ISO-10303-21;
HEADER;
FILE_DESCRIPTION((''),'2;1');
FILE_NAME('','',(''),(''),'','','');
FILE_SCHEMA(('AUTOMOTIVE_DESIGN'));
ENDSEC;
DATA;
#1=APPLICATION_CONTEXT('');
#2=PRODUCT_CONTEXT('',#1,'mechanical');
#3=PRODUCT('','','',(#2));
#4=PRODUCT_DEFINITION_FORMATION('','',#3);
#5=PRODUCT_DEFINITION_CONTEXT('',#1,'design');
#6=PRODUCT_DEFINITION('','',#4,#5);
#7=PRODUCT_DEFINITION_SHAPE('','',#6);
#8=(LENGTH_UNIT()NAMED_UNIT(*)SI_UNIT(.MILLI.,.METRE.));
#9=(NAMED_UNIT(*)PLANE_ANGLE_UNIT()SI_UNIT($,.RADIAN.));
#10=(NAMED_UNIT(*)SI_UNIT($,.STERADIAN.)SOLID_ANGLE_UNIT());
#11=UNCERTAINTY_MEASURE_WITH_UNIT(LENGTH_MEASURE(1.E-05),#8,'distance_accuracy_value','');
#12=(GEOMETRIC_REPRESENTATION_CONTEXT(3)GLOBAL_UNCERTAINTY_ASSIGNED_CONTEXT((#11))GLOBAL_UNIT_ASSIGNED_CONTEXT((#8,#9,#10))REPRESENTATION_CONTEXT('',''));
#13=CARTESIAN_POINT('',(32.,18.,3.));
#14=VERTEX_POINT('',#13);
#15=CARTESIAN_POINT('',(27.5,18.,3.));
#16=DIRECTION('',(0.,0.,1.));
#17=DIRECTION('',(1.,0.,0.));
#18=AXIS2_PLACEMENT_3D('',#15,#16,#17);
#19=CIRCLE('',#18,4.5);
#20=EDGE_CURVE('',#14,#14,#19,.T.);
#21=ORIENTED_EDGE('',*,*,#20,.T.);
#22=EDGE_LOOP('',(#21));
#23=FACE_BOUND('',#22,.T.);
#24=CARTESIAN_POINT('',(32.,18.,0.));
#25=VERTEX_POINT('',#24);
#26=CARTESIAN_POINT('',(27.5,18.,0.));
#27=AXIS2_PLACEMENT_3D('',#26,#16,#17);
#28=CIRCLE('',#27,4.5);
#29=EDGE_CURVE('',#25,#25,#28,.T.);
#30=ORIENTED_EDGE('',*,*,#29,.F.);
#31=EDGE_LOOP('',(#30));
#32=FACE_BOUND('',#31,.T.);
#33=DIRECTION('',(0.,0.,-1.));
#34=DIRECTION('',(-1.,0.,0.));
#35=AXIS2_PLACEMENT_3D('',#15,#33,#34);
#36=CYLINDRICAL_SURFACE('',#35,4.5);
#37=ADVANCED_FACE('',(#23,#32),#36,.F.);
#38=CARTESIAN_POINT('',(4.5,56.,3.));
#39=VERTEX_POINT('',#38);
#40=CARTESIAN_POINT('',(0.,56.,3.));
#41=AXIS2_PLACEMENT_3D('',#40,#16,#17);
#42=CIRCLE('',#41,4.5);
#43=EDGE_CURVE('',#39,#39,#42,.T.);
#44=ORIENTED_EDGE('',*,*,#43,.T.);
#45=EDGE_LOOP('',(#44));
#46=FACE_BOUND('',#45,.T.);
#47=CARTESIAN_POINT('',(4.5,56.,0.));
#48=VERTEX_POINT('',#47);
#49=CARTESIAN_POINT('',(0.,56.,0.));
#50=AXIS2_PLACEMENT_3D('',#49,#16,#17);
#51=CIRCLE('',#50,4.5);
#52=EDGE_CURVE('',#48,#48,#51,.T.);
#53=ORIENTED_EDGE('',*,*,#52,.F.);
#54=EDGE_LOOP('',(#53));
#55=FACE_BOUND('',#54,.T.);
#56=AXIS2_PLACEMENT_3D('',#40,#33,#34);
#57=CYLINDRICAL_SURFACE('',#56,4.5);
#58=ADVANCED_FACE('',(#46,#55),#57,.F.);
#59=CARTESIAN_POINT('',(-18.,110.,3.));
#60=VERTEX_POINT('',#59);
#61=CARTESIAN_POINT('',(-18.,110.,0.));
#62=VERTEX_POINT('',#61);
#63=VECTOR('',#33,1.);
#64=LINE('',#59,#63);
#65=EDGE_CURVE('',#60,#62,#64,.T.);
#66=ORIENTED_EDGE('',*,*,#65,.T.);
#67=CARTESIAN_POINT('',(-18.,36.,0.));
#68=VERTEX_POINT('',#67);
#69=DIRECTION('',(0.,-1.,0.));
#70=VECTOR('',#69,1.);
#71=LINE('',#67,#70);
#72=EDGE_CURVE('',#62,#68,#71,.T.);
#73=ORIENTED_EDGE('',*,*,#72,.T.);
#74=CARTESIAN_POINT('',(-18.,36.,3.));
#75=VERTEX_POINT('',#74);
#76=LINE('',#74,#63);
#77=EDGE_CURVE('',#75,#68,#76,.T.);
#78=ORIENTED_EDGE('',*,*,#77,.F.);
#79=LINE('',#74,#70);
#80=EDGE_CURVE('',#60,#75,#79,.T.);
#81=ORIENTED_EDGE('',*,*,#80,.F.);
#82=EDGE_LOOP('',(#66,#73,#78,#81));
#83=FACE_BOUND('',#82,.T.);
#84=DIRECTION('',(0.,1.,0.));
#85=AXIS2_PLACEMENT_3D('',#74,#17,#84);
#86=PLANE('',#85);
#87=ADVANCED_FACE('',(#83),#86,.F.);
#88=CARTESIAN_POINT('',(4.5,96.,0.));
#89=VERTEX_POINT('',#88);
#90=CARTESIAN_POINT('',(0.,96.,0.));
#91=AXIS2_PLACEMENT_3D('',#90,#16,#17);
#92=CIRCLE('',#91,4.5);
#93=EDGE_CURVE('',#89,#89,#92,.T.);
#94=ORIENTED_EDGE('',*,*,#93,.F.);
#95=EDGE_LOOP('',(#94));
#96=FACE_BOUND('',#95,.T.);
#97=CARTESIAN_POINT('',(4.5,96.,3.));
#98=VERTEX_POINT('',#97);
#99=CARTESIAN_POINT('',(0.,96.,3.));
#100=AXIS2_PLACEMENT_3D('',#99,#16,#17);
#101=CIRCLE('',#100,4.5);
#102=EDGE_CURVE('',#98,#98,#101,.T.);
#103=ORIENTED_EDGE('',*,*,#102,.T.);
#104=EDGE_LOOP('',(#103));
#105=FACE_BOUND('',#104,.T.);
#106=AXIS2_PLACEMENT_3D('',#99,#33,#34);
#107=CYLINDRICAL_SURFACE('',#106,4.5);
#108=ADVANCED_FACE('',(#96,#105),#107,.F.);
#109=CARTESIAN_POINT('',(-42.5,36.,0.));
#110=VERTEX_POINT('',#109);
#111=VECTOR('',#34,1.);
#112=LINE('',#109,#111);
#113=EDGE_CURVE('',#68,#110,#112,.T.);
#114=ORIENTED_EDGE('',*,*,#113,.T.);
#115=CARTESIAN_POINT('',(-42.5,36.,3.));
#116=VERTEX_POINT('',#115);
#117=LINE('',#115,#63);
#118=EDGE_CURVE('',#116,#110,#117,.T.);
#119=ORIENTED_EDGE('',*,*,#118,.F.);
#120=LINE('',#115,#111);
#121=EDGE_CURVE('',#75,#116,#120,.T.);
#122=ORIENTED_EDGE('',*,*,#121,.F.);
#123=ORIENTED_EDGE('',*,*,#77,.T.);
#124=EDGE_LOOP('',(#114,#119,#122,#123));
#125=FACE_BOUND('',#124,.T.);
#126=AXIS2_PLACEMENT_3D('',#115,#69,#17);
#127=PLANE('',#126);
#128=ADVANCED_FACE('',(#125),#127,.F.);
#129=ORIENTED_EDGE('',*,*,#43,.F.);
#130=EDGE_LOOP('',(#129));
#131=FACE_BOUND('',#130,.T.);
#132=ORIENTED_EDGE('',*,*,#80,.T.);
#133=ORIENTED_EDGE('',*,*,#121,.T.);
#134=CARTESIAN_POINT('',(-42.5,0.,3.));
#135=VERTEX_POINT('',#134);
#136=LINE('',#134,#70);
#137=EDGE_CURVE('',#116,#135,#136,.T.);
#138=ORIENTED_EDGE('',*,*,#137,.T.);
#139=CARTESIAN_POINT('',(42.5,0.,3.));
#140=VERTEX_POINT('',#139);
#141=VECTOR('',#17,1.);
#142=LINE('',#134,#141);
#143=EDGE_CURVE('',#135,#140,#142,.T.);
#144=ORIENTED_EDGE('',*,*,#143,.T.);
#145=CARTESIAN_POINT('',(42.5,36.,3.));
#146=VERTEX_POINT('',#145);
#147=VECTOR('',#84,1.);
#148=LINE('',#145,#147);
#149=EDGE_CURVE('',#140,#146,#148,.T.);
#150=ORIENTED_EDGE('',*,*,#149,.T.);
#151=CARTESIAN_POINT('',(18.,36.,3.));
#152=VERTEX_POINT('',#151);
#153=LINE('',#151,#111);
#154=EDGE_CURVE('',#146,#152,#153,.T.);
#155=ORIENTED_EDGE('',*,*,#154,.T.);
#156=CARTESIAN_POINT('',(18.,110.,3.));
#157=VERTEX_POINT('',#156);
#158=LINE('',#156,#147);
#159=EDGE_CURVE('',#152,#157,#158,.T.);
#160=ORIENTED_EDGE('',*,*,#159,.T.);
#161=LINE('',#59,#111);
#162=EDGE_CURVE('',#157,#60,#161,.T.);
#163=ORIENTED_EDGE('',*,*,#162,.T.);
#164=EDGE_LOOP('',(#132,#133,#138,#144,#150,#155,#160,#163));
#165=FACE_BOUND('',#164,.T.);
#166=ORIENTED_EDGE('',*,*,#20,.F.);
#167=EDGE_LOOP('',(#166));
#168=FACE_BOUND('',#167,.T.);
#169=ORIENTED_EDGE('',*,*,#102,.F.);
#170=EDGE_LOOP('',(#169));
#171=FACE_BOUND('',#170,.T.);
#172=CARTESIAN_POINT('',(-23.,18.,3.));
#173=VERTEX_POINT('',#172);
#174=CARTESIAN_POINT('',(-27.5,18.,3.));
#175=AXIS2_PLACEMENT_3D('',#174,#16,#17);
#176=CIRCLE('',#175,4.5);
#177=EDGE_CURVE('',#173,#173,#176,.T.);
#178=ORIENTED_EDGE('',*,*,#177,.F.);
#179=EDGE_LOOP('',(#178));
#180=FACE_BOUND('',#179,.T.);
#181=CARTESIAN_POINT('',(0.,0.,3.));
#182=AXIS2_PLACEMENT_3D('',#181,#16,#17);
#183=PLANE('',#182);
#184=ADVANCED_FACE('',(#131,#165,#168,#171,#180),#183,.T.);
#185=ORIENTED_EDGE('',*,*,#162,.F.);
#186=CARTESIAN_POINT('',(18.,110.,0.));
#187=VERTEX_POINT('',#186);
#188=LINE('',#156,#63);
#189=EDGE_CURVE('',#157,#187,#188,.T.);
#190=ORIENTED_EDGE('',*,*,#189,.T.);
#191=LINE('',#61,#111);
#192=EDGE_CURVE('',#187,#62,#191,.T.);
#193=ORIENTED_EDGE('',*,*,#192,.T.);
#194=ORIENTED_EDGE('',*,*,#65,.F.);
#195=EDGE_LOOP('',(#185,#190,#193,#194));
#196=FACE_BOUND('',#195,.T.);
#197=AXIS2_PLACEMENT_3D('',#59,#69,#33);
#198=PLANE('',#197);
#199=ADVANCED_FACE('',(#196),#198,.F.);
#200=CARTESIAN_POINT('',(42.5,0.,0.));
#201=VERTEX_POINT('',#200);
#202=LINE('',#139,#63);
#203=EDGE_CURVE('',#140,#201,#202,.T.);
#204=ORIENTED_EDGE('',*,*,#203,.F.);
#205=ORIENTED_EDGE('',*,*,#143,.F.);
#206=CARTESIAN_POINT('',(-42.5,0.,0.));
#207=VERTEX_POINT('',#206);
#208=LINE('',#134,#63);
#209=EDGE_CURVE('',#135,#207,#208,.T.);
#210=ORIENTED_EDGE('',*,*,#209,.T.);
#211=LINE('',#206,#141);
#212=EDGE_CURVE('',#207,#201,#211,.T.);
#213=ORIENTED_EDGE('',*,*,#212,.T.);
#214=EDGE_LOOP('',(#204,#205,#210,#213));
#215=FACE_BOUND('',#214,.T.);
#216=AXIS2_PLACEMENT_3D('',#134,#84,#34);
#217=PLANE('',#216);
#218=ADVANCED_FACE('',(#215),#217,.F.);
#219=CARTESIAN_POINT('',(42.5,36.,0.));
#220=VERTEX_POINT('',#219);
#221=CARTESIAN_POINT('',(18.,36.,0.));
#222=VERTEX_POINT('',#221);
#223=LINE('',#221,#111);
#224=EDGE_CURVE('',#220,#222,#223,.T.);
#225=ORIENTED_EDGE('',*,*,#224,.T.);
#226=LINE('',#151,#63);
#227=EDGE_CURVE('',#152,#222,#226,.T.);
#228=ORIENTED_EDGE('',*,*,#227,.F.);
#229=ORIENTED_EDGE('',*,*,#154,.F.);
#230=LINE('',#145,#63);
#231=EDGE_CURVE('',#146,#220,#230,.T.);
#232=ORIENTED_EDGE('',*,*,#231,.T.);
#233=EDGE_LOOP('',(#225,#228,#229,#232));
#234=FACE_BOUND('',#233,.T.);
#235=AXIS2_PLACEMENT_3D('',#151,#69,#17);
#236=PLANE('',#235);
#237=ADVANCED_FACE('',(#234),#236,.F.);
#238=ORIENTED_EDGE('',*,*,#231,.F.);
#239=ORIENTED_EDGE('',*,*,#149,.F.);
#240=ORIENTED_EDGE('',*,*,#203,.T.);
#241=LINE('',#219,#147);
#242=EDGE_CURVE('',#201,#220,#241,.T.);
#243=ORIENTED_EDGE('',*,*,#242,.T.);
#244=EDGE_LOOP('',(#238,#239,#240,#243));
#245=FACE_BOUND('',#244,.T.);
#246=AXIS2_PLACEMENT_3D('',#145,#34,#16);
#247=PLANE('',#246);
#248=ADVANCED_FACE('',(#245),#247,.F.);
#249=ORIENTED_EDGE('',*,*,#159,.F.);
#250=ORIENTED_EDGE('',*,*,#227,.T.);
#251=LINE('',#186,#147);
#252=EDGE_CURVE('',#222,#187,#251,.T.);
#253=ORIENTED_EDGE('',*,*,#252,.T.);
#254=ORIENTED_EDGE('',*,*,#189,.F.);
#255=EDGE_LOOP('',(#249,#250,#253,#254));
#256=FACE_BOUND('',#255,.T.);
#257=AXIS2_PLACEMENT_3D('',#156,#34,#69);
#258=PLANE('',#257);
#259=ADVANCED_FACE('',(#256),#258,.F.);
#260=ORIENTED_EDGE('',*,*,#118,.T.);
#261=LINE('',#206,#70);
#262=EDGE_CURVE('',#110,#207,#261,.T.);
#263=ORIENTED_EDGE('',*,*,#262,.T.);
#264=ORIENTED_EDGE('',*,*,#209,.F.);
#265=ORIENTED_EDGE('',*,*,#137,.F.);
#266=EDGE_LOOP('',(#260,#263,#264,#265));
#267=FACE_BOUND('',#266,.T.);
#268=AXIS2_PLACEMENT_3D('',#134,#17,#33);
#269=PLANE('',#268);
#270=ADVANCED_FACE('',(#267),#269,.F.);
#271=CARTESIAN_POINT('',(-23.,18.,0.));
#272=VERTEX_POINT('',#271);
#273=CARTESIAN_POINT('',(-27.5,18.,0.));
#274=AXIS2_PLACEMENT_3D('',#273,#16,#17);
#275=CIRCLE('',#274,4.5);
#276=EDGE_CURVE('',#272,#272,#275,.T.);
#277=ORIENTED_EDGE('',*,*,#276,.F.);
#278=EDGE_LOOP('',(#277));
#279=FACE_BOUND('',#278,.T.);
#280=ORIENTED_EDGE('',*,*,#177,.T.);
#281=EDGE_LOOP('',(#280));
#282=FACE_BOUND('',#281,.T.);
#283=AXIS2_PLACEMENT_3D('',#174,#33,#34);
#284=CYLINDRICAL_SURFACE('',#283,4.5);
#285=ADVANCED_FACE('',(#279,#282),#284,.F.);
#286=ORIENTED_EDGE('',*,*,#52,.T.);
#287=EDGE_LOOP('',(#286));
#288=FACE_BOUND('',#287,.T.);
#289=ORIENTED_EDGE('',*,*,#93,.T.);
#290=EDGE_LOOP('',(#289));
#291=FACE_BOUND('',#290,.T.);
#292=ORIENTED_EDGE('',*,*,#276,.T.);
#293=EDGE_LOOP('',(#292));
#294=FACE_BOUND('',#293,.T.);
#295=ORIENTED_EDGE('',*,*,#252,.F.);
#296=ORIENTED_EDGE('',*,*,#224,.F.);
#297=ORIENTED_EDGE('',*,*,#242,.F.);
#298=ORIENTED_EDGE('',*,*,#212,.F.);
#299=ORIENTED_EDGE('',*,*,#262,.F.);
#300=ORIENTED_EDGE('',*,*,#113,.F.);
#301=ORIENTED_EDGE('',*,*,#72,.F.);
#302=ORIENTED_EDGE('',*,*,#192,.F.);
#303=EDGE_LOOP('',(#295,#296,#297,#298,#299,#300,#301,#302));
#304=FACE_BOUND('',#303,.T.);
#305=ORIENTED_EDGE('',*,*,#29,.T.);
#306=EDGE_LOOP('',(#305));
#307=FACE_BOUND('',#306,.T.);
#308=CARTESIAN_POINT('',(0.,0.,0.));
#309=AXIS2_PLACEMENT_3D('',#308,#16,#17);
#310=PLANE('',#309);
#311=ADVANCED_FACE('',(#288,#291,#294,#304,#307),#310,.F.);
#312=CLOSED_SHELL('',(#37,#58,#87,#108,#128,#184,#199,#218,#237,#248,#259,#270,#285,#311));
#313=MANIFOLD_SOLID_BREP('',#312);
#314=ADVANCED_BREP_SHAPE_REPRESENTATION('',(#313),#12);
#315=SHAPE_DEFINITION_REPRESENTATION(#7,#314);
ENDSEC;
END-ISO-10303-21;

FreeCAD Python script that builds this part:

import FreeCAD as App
import Part
import Sketcher
from FreeCAD import Vector
Q = App.Units.Quantity


def add_polygon(sketch, points):
    """Adds a closed chain of lines whose ends are joined by coincident constraints."""
    first, n = sketch.GeometryCount, len(points)
    for a, b in zip(points, points[1:] + points[:1]):
        sketch.addGeometry(Part.LineSegment(App.Vector(*a, 0), App.Vector(*b, 0)), False)
    for i in range(n):
        sketch.addConstraint(Sketcher.Constraint("Coincident", first + i, 2, first + (i + 1) % n, 1))

doc = App.newDocument("Part")
body = doc.addObject("PartDesign::Body", "Body")

sketch1 = body.newObject("Sketcher::SketchObject", "Sketch")
sketch1.AttachmentSupport = (doc.getObject("XY_Plane"), [""])
sketch1.MapMode = "FlatFace"
add_polygon(sketch1, [(-42.5, 0), (42.5, 0), (42.5, 36), (18, 36), (18, 110), (-18, 110), (-18, 36), (-42.5, 36)])
sketch1.addGeometry(Part.Circle(Vector(-27.5, 18, 0), Vector(0, 0, 1), 4.5), False)
sketch1.addGeometry(Part.Circle(Vector(27.5, 18, 0), Vector(0, 0, 1), 4.5), False)
sketch1.addGeometry(Part.Circle(Vector(0, 56, 0), Vector(0, 0, 1), 4.5), False)
sketch1.addGeometry(Part.Circle(Vector(0, 96, 0), Vector(0, 0, 1), 4.5), False)
sketch1.addConstraint([
    Sketcher.Constraint("Horizontal", 0),
    Sketcher.Constraint("Vertical", 1),
    Sketcher.Constraint("Horizontal", 2),
    Sketcher.Constraint("Vertical", 3),
    Sketcher.Constraint("Horizontal", 4),
    Sketcher.Constraint("Vertical", 5),
    Sketcher.Constraint("Horizontal", 6),
    Sketcher.Constraint("Vertical", 7),
    Sketcher.Constraint("Equal", 8, 9),
    Sketcher.Constraint("Equal", 9, 10),
    Sketcher.Constraint("Equal", 10, 11),
    Sketcher.Constraint("Symmetric", 0, 2, 7, 2, -1, 1),
    Sketcher.Constraint("Symmetric", 8, 3, 9, 3, -2),
    Sketcher.Constraint("Symmetric", 2, 2, 5, 2, -2),
    Sketcher.Constraint("PointOnObject", 10, 3, -2),
    Sketcher.Constraint("PointOnObject", 11, 3, -2),
    Sketcher.Constraint("Equal", 4, 1),
    Sketcher.Constraint("Diameter", 8, Q("9 mm")),
    Sketcher.Constraint("DistanceX", 0, 1, 0, 2, Q("85 mm")),
    Sketcher.Constraint("DistanceX", 4, 2, 4, 1, Q("36 mm")),
    Sketcher.Constraint("DistanceY", 3, 1, 3, 2, Q("74 mm")),
    Sketcher.Constraint("DistanceY", -1, 1, 8, 3, Q("18 mm")),
    Sketcher.Constraint("DistanceY", -1, 1, 10, 3, Q("56 mm")),
    Sketcher.Constraint("DistanceY", -1, 1, 11, 3, Q("96 mm")),
    Sketcher.Constraint("DistanceX", 8, 3, 9, 3, Q("55 mm")),
])
pad1 = body.newObject("PartDesign::Pad", "Pad")
pad1.Profile = sketch1
pad1.Length = 3

doc.recompute()
